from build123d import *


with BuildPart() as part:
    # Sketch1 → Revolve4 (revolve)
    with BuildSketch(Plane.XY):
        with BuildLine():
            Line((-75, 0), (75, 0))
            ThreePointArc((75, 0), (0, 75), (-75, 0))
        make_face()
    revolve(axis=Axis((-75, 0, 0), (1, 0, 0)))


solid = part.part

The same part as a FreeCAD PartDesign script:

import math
import FreeCAD as App
import Part
import Sketcher
Q = App.Units.Quantity

doc = App.newDocument("Part")
body = doc.addObject("PartDesign::Body", "Body")

sketch1 = body.newObject("Sketcher::SketchObject", "Sketch")
sketch1.AttachmentSupport = (doc.getObject("XY_Plane"), [""])
sketch1.MapMode = "FlatFace"
sketch1.addGeometry([
    Part.LineSegment(App.Vector(-75, 0, 0), App.Vector(75, 0, 0)),
    Part.ArcOfCircle(Part.Circle(App.Vector(0, 0, 0), App.Vector(0, 0, 1), 75), math.radians(0), math.radians(180)),
], False)
sketch1.addConstraint([
    Sketcher.Constraint("Coincident", 0, 1, 1, 2),
    Sketcher.Constraint("Coincident", 1, 1, 0, 2),
    Sketcher.Constraint("Horizontal", 0),
    Sketcher.Constraint("Coincident", 1, 3, -1, 1),
    Sketcher.Constraint("PointOnObject", 0, 1, -1),
    Sketcher.Constraint("Radius", 1, Q("75 mm")),
])
revolution = body.newObject("PartDesign::Revolution", "Revolution")
revolution.Profile = sketch1
revolution.ReferenceAxis = (sketch1, ["H_Axis"])
revolution.Angle = 360

doc.recompute()
